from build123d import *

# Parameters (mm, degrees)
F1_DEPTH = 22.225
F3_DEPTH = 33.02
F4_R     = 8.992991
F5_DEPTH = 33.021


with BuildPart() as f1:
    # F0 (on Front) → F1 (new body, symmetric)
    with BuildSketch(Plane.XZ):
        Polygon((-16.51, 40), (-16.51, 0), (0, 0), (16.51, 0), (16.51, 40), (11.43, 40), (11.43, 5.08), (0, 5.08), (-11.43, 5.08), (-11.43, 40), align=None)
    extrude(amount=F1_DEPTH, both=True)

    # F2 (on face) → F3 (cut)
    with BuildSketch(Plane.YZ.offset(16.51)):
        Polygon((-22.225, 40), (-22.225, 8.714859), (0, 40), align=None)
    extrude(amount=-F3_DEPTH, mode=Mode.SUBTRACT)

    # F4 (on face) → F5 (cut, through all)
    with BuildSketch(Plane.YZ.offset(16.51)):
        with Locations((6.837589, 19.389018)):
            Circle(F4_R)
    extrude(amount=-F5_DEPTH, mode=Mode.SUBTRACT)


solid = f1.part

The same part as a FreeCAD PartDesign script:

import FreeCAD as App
import Part
import Sketcher
from FreeCAD import Vector
Q = App.Units.Quantity


def add_polygon(sketch, points):
    """Adds a closed chain of lines whose ends are joined by coincident constraints."""
    first, n = sketch.GeometryCount, len(points)
    for a, b in zip(points, points[1:] + points[:1]):
        sketch.addGeometry(Part.LineSegment(App.Vector(*a, 0), App.Vector(*b, 0)), False)
    for i in range(n):
        sketch.addConstraint(Sketcher.Constraint("Coincident", first + i, 2, first + (i + 1) % n, 1))

doc = App.newDocument("Part")
body = doc.addObject("PartDesign::Body", "Body")

# Sketch on XZ plane
sketch1 = body.newObject("Sketcher::SketchObject", "Sketch")
sketch1.AttachmentSupport = (doc.getObject("XZ_Plane"), [""])
sketch1.MapMode = "FlatFace"
add_polygon(sketch1, [(-16.51, 40), (-16.51, 0), (16.51, 0), (16.51, 40), (11.43, 40), (11.43, 5.08), (-11.43, 5.08), (-11.43, 40)])  # lines 0-7
sketch1.addConstraint(Sketcher.Constraint("Vertical", 0))
sketch1.addConstraint(Sketcher.Constraint("Horizontal", 1))
sketch1.addConstraint(Sketcher.Constraint("Vertical", 2))
sketch1.addConstraint(Sketcher.Constraint("Horizontal", 3))
sketch1.addConstraint(Sketcher.Constraint("Vertical", 4))
sketch1.addConstraint(Sketcher.Constraint("Horizontal", 5))
sketch1.addConstraint(Sketcher.Constraint("Vertical", 6))
sketch1.addConstraint(Sketcher.Constraint("Horizontal", 7))
sketch1.addConstraint(Sketcher.Constraint("Symmetric", 0, 2, 1, 2, -1, 1))
sketch1.addConstraint(Sketcher.Constraint("Symmetric", 3, 2, 6, 2, -2))
sketch1.addConstraint(Sketcher.Constraint("DistanceX", 1, 1, 1, 2, Q("1.3 in")))
sketch1.addConstraint(Sketcher.Constraint("DistanceX", 3, 2, 3, 1, Q("0.2 in")))
sketch1.addConstraint(Sketcher.Constraint("DistanceY", -1, 1, 4, 2, Q("0.2 in")))
sketch1.addConstraint(Sketcher.Constraint("DistanceY", 0, 2, 0, 1, Q("40 mm")))
pad1 = body.newObject("PartDesign::Pad", "Pad")
pad1.Profile = sketch1
pad1.Length = Q("1.75 in")
pad1.Midplane = True

# Sketch on YZ plane
sketch2 = body.newObject("Sketcher::SketchObject", "Sketch001")
sketch2.AttachmentSupport = (doc.getObject("YZ_Plane"), [""])
sketch2.MapMode = "FlatFace"
sketch2.AttachmentOffset = App.Placement(Vector(0, 0, 0.65 * 25.4), App.Rotation())
add_polygon(sketch2, [(-22.225, 40), (-22.225, 8.714859), (0, 40)])  # lines 0-2
sketch2.addConstraint(Sketcher.Constraint("Vertical", 0))
sketch2.addConstraint(Sketcher.Constraint("Horizontal", 2))
sketch2.addConstraint(Sketcher.Constraint("PointOnObject", 1, 2, -2))
sketch2.addConstraint(Sketcher.Constraint("DistanceX", 2, 2, 2, 1, Q("0.875 in")))
sketch2.addConstraint(Sketcher.Constraint("DistanceY", 0, 2, 0, 1, Q("31.285141 mm")))
sketch2.addConstraint(Sketcher.Constraint("DistanceY", -1, 1, 1, 2, Q("40 mm")))
pocket1 = body.newObject("PartDesign::Pocket", "Pocket")
pocket1.Profile = sketch2
pocket1.Length = Q("1.3 in")

# Sketch on YZ plane
sketch3 = body.newObject("Sketcher::SketchObject", "Sketch002")
sketch3.AttachmentSupport = (doc.getObject("YZ_Plane"), [""])
sketch3.MapMode = "FlatFace"
sketch3.AttachmentOffset = App.Placement(Vector(0, 0, 0.65 * 25.4), App.Rotation())
sketch3.addGeometry(Part.Circle(Vector(6.837589, 19.389018, 0), Vector(0, 0, 1), 8.992991), False)
sketch3.addConstraint(Sketcher.Constraint("Diameter", 0, Q("17.985982 mm")))
sketch3.addConstraint(Sketcher.Constraint("DistanceX", -1, 1, 0, 3, Q("6.837589 mm")))
sketch3.addConstraint(Sketcher.Constraint("DistanceY", -1, 1, 0, 3, Q("19.389018 mm")))
pocket2 = body.newObject("PartDesign::Pocket", "Pocket001")
pocket2.Profile = sketch3
pocket2.Type = "ThroughAll"

doc.recompute()
